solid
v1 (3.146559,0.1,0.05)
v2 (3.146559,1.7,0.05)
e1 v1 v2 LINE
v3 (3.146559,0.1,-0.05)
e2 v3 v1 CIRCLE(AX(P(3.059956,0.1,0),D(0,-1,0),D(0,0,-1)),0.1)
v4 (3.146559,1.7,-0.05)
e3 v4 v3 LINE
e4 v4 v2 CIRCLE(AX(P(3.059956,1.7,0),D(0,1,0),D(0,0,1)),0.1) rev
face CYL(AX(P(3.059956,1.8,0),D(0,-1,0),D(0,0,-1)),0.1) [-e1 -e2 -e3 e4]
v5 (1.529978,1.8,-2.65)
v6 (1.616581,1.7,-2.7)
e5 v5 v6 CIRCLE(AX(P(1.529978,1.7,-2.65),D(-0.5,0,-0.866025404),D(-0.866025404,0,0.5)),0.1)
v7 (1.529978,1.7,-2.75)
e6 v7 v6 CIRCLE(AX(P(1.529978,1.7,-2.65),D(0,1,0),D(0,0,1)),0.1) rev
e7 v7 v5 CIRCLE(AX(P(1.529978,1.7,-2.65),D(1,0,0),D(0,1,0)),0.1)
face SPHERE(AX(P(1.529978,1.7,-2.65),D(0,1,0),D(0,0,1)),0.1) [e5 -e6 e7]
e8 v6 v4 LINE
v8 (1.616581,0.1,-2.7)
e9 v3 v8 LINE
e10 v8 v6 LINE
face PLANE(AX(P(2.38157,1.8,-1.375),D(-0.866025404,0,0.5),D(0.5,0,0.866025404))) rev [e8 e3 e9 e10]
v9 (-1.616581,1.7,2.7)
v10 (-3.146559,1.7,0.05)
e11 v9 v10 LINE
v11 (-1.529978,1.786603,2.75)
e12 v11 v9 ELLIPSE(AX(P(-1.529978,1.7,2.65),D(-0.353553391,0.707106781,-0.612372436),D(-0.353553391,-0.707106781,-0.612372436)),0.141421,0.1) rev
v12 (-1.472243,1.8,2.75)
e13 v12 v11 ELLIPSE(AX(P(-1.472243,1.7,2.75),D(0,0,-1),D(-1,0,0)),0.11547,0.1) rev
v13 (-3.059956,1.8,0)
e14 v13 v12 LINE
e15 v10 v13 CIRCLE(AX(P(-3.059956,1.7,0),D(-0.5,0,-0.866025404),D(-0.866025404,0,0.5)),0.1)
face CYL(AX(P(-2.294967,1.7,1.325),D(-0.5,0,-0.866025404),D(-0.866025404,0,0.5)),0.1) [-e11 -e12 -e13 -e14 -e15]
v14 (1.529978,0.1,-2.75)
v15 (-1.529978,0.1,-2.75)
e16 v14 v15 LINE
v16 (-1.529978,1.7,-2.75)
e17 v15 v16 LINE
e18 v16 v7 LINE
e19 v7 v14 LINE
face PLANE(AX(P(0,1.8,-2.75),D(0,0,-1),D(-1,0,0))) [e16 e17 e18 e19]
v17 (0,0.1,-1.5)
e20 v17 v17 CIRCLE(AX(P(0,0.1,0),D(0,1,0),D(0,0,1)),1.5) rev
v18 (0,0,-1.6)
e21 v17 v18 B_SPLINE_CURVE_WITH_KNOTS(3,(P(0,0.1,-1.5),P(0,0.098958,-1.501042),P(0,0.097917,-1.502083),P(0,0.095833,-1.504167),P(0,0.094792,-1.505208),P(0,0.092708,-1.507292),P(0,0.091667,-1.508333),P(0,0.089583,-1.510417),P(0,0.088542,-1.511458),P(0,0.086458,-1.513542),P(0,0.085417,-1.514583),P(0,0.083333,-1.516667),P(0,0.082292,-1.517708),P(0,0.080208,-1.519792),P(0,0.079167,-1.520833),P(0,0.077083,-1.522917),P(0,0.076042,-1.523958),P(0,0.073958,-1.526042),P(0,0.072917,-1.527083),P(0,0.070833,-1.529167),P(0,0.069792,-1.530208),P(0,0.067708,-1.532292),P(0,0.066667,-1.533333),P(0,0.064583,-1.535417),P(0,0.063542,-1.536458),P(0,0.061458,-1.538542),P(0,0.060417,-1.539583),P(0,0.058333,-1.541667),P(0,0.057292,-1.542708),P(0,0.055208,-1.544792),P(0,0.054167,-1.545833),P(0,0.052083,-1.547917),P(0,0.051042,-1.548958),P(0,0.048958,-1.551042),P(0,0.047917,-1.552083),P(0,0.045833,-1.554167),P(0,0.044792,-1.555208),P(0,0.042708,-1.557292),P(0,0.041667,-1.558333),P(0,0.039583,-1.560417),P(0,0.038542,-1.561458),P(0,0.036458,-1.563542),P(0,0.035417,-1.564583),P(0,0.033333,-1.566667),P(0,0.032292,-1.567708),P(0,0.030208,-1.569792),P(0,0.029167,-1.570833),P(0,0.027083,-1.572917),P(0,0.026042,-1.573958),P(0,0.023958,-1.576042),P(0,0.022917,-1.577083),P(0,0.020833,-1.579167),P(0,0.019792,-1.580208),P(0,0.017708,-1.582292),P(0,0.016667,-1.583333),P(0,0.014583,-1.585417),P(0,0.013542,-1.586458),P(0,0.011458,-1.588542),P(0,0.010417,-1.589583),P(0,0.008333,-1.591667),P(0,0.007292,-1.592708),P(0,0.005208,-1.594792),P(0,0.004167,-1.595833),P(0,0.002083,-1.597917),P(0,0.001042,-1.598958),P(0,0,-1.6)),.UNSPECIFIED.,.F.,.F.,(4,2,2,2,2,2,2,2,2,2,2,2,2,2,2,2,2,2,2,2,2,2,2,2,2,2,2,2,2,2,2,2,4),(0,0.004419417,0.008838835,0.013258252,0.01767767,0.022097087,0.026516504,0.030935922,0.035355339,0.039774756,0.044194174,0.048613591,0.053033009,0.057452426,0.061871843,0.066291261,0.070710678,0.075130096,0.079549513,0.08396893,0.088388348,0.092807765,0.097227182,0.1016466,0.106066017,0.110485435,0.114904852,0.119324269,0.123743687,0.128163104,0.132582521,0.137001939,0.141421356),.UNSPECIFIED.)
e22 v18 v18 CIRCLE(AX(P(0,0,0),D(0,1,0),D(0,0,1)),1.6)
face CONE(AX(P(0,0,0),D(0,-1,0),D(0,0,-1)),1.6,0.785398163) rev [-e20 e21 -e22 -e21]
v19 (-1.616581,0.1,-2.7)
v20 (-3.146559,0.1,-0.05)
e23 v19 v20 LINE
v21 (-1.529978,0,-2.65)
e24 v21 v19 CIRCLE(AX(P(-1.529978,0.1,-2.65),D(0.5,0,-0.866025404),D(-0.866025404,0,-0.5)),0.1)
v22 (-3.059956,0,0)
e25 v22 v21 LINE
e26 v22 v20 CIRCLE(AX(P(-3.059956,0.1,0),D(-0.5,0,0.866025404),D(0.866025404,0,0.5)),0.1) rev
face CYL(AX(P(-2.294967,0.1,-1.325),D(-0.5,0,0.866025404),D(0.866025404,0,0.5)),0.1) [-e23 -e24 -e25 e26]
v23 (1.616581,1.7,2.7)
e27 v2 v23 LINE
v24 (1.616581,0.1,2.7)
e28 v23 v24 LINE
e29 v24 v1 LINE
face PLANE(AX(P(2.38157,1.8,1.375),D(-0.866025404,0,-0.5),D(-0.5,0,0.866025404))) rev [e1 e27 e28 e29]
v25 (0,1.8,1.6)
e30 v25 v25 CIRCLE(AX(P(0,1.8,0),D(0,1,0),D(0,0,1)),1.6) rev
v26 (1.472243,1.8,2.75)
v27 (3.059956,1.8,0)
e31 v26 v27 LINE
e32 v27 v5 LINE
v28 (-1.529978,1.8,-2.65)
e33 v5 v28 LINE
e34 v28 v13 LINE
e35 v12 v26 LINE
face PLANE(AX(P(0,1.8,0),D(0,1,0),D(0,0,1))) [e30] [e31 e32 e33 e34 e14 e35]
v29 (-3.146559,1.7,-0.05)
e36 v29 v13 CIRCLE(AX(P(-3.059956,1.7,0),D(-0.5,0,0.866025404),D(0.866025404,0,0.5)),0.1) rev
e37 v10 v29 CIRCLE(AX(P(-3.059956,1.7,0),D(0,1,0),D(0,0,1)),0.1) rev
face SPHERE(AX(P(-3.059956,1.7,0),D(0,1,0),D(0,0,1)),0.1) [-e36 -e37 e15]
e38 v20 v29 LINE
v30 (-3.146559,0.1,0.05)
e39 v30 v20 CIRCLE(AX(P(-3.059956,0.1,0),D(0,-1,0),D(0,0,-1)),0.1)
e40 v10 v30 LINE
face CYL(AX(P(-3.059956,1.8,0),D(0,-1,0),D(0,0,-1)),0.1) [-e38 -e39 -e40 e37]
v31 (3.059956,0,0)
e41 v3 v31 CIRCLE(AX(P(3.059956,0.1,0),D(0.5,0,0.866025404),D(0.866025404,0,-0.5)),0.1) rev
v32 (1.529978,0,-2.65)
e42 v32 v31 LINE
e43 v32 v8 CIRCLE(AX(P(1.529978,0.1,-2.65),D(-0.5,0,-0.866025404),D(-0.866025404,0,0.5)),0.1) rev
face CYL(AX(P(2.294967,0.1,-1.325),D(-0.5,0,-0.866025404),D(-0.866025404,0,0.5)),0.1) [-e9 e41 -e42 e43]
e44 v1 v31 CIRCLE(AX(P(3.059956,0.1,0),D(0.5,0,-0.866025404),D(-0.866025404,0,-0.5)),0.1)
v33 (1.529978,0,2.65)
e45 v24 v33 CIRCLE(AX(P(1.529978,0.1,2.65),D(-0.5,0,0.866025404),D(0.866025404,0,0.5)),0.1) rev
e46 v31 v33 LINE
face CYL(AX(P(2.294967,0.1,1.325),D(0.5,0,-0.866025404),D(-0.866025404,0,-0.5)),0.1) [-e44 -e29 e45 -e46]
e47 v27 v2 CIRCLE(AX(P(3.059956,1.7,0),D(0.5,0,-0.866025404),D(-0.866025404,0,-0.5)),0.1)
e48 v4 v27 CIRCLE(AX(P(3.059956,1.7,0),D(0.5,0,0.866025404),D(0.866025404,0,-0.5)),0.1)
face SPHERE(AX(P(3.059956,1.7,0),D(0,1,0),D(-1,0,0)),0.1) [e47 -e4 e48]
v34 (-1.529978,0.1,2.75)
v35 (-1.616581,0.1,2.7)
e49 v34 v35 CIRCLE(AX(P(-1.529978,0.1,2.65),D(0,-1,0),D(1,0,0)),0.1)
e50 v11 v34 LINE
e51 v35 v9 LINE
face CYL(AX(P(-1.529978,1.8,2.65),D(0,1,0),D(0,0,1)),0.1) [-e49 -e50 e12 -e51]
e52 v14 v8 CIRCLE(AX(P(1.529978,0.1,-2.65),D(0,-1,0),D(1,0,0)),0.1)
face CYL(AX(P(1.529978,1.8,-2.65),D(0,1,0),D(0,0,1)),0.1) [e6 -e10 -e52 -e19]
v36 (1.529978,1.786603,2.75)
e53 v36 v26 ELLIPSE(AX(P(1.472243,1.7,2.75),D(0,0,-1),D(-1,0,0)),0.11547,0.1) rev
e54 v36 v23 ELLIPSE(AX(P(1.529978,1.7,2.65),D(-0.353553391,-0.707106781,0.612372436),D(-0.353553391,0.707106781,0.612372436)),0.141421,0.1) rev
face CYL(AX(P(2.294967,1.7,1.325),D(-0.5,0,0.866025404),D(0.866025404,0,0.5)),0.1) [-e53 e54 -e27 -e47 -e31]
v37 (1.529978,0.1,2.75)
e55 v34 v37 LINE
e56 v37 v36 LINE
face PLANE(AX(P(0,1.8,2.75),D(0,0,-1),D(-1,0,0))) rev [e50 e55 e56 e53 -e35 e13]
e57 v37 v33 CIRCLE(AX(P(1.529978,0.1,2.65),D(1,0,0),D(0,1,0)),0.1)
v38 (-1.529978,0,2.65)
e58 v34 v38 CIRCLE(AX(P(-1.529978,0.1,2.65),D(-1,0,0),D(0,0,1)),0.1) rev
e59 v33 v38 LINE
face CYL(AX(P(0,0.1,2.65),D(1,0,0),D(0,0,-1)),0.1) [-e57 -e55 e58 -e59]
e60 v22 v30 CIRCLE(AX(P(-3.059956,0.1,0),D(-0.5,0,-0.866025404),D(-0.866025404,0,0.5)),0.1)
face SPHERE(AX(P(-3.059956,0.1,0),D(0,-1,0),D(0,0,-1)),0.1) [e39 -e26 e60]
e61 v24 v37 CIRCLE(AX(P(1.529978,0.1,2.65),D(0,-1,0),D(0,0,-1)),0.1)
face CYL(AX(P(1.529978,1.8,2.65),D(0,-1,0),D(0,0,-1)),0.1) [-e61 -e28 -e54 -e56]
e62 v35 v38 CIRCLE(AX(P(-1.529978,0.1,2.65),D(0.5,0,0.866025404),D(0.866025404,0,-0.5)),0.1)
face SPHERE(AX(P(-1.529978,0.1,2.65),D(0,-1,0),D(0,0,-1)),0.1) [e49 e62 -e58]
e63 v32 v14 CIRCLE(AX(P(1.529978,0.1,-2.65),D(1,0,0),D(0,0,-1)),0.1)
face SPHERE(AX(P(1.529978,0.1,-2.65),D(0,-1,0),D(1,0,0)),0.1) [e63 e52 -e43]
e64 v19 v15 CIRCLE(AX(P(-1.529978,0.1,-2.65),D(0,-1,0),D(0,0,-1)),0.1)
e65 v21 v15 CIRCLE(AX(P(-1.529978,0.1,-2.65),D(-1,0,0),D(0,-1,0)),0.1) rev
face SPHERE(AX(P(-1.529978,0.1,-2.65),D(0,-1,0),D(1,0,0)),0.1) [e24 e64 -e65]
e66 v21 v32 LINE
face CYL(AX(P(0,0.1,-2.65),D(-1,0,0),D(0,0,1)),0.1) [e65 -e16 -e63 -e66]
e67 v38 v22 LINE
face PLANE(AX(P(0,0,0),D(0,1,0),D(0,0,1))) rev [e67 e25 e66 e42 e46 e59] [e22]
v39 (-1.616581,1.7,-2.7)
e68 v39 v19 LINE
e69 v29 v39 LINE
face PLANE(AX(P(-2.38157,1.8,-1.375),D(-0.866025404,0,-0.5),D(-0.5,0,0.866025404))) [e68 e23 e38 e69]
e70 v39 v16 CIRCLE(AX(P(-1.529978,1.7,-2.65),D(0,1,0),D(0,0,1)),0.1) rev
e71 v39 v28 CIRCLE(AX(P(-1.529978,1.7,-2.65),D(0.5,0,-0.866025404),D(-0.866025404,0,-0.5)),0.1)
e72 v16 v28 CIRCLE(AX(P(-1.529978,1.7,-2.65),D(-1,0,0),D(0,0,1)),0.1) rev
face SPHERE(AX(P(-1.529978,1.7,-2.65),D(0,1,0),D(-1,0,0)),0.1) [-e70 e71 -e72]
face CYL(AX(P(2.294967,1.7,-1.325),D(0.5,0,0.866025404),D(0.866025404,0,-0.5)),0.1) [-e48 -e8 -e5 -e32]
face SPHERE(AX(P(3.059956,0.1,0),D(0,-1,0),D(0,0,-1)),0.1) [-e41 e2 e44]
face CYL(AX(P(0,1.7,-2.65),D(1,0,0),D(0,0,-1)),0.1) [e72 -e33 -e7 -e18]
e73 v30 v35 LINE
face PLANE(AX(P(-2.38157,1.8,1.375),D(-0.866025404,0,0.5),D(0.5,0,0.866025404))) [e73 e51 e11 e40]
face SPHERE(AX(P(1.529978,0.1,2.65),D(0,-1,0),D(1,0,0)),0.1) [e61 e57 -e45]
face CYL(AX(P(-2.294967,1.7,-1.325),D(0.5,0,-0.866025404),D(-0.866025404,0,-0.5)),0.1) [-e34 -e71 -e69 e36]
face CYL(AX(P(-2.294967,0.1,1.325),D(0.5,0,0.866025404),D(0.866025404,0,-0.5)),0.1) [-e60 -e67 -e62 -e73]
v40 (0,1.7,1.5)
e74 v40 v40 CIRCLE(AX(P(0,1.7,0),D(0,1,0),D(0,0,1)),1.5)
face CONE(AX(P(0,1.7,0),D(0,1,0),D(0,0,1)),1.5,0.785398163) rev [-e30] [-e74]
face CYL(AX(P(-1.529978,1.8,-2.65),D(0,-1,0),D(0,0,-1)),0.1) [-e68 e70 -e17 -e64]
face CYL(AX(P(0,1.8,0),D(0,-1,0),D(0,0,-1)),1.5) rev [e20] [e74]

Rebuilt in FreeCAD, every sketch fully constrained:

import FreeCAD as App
import Part
import Sketcher
from FreeCAD import Vector
Q = App.Units.Quantity


def edges_at(feature, points):
    """Names of the edges that pass closest to the given points."""
    edges = feature.Shape.Edges
    near = lambda p: min(range(len(edges)), key=lambda i: edges[i].distToShape(Part.Vertex(*p))[0])
    return sorted({f"Edge{near(p) + 1}" for p in points})


def add_polygon(sketch, points):
    """Adds a closed chain of lines whose ends are joined by coincident constraints."""
    first, n = sketch.GeometryCount, len(points)
    for a, b in zip(points, points[1:] + points[:1]):
        sketch.addGeometry(Part.LineSegment(App.Vector(*a, 0), App.Vector(*b, 0)), False)
    for i in range(n):
        sketch.addConstraint(Sketcher.Constraint("Coincident", first + i, 2, first + (i + 1) % n, 1))

doc = App.newDocument("Part")
body = doc.addObject("PartDesign::Body", "Body")

# Sketch on XZ plane
sketch1 = doc.addObject("Sketcher::SketchObject", "Sketch")
body.addObject(sketch1)
sketch1.AttachmentSupport = (doc.XZ_Plane, [""])
sketch1.MapMode = "FlatFace"
add_polygon(sketch1, [(-1.6, -2.8), (-2.4, -1.4), (-3.2, 0), (-2.4, 1.4), (-1.6, 2.8), (1.6, 2.8), (2.4, 1.4), (3.2, 0), (2.4, -1.4), (1.6, -2.8)])  # lines 0-9
sketch1.addGeometry(Part.Circle(Vector(0, 0, 0), Vector(0, 0, 1), 1.5), False)  # 10
sketch1.addConstraint(Sketcher.Constraint("Horizontal", 4))
sketch1.addConstraint(Sketcher.Constraint("Horizontal", 9))
sketch1.addConstraint(Sketcher.Constraint("Coincident", 10, 3, -1, 1))
sketch1.addConstraint(Sketcher.Constraint("Symmetric", 0, 2, 5, 2, -1, 1))
sketch1.addConstraint(Sketcher.Constraint("Symmetric", 1, 2, 6, 2, -1, 1))
sketch1.addConstraint(Sketcher.Constraint("Symmetric", 2, 2, 7, 2, -1, 1))
sketch1.addConstraint(Sketcher.Constraint("Symmetric", 3, 2, 8, 2, -1, 1))
sketch1.addConstraint(Sketcher.Constraint("Symmetric", 2, 2, 5, 2, -2))
sketch1.addConstraint(Sketcher.Constraint("PointOnObject", 1, 2, -1))
sketch1.addConstraint(Sketcher.Constraint("Parallel", 0, 1))
sketch1.addConstraint(Sketcher.Constraint("Parallel", 2, 3))
sketch1.addConstraint(Sketcher.Constraint("Parallel", 1, 5))
sketch1.addConstraint(Sketcher.Constraint("Equal", 0, 1))
sketch1.addConstraint(Sketcher.Constraint("Diameter", 10, Q("3 mm")))
sketch1.addConstraint(Sketcher.Constraint("Angle", 0, Q("120 deg")))
sketch1.addConstraint(Sketcher.Constraint("DistanceY", -1, 1, 3, 2, Q("2.75 mm")))
sketch1.addConstraint(Sketcher.Constraint("DistanceX", 4, 1, 4, 2, Q("3.175426 mm")))
pad1 = doc.addObject("PartDesign::Pad", "Pad")
body.addObject(pad1)
pad1.Profile = sketch1
pad1.Length = 1.8
pad1.Reversed = True
doc.recompute()

fillet = doc.addObject("PartDesign::Fillet", "Fillet")
body.addObject(fillet)
fillet.Base = (pad1, edges_at(pad1, [
    (2.778, 0, -0.688),
    (2.778, 0, 0.688),
    (0, 0, 2.75),
    (-2.778, 1.8, 0.688),
    (-1.985, 0, 2.063),
    (-2.778, 0, -0.688),
    (-1.588, 0.9, -2.75),
    (1.588, 0.9, -2.75),
    (3.175, 0.9, 0),
    (1.588, 0.9, 2.75),
    (-1.588, 0.9, 2.75),
    (-3.175, 0.9, 0),
    (1.985, 1.8, 2.063),
    (2.778, 1.8, -0.688),
    (0, 1.8, -2.75),
    (-1.985, 1.8, -2.063),
    (0, 0, -2.75),
]))
fillet.Radius = 0.1
doc.recompute()

chamfer = doc.addObject("PartDesign::Chamfer", "Chamfer")
body.addObject(chamfer)
chamfer.Base = (fillet, edges_at(fillet, [(0, 1.8, -1.5), (0, 0, -1.5)]))
chamfer.Size = 0.1

doc.recompute()
